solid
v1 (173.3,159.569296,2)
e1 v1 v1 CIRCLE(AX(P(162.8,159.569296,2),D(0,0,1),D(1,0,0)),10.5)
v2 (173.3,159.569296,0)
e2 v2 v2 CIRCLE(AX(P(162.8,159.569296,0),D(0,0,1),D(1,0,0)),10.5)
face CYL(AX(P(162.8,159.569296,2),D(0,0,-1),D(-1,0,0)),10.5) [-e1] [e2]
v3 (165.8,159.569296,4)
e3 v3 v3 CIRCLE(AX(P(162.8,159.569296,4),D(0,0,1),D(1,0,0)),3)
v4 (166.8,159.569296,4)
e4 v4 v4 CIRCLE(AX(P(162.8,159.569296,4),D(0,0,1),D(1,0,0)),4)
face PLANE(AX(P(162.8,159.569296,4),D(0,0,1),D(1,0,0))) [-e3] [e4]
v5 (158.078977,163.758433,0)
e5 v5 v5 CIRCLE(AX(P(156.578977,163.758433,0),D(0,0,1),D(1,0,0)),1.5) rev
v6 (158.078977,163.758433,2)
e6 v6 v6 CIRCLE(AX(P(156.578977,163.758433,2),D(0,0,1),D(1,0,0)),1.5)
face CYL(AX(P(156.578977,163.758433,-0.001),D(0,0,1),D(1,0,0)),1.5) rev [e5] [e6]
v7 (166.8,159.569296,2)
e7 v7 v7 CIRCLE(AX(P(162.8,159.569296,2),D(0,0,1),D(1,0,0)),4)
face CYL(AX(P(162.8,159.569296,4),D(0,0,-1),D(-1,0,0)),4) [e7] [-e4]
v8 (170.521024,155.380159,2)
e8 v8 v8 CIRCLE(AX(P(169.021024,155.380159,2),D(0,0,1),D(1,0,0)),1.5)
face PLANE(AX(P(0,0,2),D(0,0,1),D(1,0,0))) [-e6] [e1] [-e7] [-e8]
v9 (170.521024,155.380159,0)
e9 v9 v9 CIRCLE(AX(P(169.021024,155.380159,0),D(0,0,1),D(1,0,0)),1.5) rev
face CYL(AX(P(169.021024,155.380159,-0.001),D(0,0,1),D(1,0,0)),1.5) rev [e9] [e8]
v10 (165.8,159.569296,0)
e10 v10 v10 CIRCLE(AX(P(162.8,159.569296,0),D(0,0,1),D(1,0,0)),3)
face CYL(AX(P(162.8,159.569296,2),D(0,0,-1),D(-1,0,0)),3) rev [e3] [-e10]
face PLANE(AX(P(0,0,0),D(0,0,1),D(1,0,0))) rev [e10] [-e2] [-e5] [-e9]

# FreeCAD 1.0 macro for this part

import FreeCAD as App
import Part
import Sketcher
Q = App.Units.Quantity

doc = App.newDocument("Part")
params = doc.addObject("Spreadsheet::Sheet", "Params")
for row, (alias, value) in enumerate([
    ("sketch1_diameter", "21 mm"),
    ("sketch1_diameter2", "6 mm"),
    ("pad1_length", "2 mm"),
    ("sketch2_diameter", "3 mm"),
    ("sketch3_diameter", "3 mm"),
    ("sketch4_diameter", "8.000001 mm"),
    ("sketch4_diameter2", "6 mm"),
    ("pad2_length", "2 mm"),
], start=1):
    params.set(f"A{row}", alias)
    params.set(f"B{row}", "=" + value)
    params.setAlias(f"B{row}", alias)

body = doc.addObject("PartDesign::Body", "Body")

# Sketch on XY plane
sketch1 = body.newObject("Sketcher::SketchObject", "Sketch")
sketch1.AttachmentSupport = (doc.getObject("XY_Plane"), [""])
sketch1.MapMode = "FlatFace"
sketch1.addGeometry([
    Part.Circle(App.Vector(162.8, 159.6, 0), App.Vector(0, 0, 1), 10.5),
    Part.Circle(App.Vector(162.8, 159.6, 0), App.Vector(0, 0, 1), 3),
], False)
sketch1.addConstraint([
    Sketcher.Constraint("Coincident", 1, 3, 0, 3),
    Sketcher.Constraint("Diameter", 0, Q("21 mm")),
    Sketcher.Constraint("Diameter", 1, Q("6 mm")),
    Sketcher.Constraint("DistanceX", -1, 1, 0, 3, Q("162.8 mm")),
    Sketcher.Constraint("DistanceY", -1, 1, 0, 3, Q("159.569296 mm")),
])
sketch1.setExpression("Constraints[1]", "Params.sketch1_diameter")
sketch1.setExpression("Constraints[2]", "Params.sketch1_diameter2")
pad1 = body.newObject("PartDesign::Pad", "Pad")
pad1.Profile = sketch1
pad1.setExpression("Length", "Params.pad1_length")

# Sketch on XY plane
sketch2 = body.newObject("Sketcher::SketchObject", "Sketch001")
sketch2.AttachmentSupport = (doc.getObject("XY_Plane"), [""])
sketch2.MapMode = "FlatFace"
sketch2.AttachmentOffset = App.Placement(App.Vector(0, 0, 2), App.Rotation())
sketch2.addGeometry(Part.Circle(App.Vector(156.6, 163.8, 0), App.Vector(0, 0, 1), 1.5), False)
sketch2.addConstraint([
    Sketcher.Constraint("Diameter", 0, Q("3 mm")),
    Sketcher.Constraint("DistanceX", -1, 1, 0, 3, Q("156.578977 mm")),
    Sketcher.Constraint("DistanceY", -1, 1, 0, 3, Q("163.758433 mm")),
])
sketch2.setExpression("Constraints[0]", "Params.sketch2_diameter")
pocket1 = body.newObject("PartDesign::Pocket", "Pocket")
pocket1.Profile = sketch2
pocket1.Type = "UpToFirst"

# Sketch on XY plane
sketch3 = body.newObject("Sketcher::SketchObject", "Sketch002")
sketch3.AttachmentSupport = (doc.getObject("XY_Plane"), [""])
sketch3.MapMode = "FlatFace"
sketch3.AttachmentOffset = App.Placement(App.Vector(0, 0, 2), App.Rotation())
sketch3.addGeometry(Part.Circle(App.Vector(169, 155.4, 0), App.Vector(0, 0, 1), 1.5), False)
sketch3.addConstraint([
    Sketcher.Constraint("Diameter", 0, Q("3 mm")),
    Sketcher.Constraint("DistanceY", -1, 1, 0, 3, Q("155.380159 mm")),
    Sketcher.Constraint("DistanceX", -1, 1, 0, 3, Q("169.021024 mm")),
])
sketch3.setExpression("Constraints[0]", "Params.sketch3_diameter")
pocket2 = body.newObject("PartDesign::Pocket", "Pocket001")
pocket2.Profile = sketch3
pocket2.Type = "UpToFirst"

# Sketch on XY plane
sketch4 = body.newObject("Sketcher::SketchObject", "Sketch003")
sketch4.AttachmentSupport = (doc.getObject("XY_Plane"), [""])
sketch4.MapMode = "FlatFace"
sketch4.AttachmentOffset = App.Placement(App.Vector(0, 0, 2), App.Rotation())
sketch4.addGeometry([
    Part.Circle(App.Vector(162.8, 159.6, 0), App.Vector(0, 0, 1), 4),
    Part.Circle(App.Vector(162.8, 159.6, 0), App.Vector(0, 0, 1), 3),
], False)
sketch4.addConstraint([
    Sketcher.Constraint("Coincident", 1, 3, 0, 3),
    Sketcher.Constraint("Diameter", 0, Q("8.000001 mm")),
    Sketcher.Constraint("Diameter", 1, Q("6 mm")),
    Sketcher.Constraint("DistanceX", -1, 1, 0, 3, Q("162.8 mm")),
    Sketcher.Constraint("DistanceY", -1, 1, 0, 3, Q("159.569296 mm")),
])
sketch4.setExpression("Constraints[1]", "Params.sketch4_diameter")
sketch4.setExpression("Constraints[2]", "Params.sketch4_diameter2")
pad2 = body.newObject("PartDesign::Pad", "Pad001")
pad2.Profile = sketch4
pad2.setExpression("Length", "Params.pad2_length")

doc.recompute()
